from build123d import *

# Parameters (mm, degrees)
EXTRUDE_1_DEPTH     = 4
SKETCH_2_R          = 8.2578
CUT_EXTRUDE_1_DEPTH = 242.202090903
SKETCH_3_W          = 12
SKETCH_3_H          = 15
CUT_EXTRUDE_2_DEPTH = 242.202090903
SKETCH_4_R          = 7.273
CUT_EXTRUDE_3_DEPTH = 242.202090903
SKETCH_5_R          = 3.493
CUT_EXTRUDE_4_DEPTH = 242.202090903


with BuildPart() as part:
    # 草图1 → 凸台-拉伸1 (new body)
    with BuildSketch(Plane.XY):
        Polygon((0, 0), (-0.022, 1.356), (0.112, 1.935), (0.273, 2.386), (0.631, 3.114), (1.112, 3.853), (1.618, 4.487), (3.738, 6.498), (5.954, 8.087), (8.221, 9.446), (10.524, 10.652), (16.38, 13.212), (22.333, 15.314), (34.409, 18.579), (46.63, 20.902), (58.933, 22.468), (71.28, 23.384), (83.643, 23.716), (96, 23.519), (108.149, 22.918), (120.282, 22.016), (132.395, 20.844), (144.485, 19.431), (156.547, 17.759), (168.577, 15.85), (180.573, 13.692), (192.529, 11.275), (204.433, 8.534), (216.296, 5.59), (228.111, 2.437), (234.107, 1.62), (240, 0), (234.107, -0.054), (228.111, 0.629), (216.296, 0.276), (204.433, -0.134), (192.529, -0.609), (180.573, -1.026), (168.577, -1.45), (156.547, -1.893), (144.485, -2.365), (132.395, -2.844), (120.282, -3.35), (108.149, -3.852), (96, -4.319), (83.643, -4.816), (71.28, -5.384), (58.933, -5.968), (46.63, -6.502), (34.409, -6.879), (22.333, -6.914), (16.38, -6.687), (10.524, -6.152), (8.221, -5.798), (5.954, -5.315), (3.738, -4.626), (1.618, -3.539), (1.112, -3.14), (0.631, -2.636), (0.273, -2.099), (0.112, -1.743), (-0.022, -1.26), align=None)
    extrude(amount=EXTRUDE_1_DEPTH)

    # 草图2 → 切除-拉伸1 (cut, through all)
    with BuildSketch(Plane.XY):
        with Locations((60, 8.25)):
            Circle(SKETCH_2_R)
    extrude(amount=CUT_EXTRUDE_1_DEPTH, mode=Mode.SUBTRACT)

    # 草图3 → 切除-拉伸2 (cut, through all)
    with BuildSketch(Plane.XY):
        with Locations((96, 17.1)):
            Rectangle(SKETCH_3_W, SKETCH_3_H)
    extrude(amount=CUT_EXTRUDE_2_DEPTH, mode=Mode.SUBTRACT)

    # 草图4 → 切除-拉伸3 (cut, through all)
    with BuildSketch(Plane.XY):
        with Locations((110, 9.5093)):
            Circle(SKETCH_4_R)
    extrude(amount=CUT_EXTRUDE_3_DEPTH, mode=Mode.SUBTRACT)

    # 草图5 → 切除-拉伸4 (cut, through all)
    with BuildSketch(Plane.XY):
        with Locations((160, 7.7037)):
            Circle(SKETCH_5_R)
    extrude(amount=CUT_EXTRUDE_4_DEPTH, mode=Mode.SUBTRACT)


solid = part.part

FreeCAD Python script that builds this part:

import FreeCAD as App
import Part
import Sketcher
from FreeCAD import Vector
Q = App.Units.Quantity

doc = App.newDocument("Part")
params = doc.addObject("Spreadsheet::Sheet", "Params")
for row, (alias, value) in enumerate([
    ("pad1_length", "4 mm"),
    ("sketch3_width", "12 mm"),
    ("sketch3_height", "15 mm"),
], start=1):
    params.set(f"A{row}", alias)
    params.set(f"B{row}", "=" + value)
    params.setAlias(f"B{row}", alias)

body = doc.addObject("PartDesign::Body", "Body")

sketch1 = body.newObject("Sketcher::SketchObject", "Sketch")
sketch1.AttachmentSupport = (doc.getObject("XY_Plane"), [""])
sketch1.MapMode = "FlatFace"
sketch1.addGeometry([
    Part.LineSegment(Vector(-0.02, 1.36, 0), Vector(0, 0, 0)),
    Part.LineSegment(Vector(0, 0, 0), Vector(-0.02, -1.26, 0)),
    Part.LineSegment(Vector(-0.02, -1.26, 0), Vector(0.11, -1.74, 0)),
    Part.LineSegment(Vector(0.11, -1.74, 0), Vector(0.27, -2.1, 0)),
    Part.LineSegment(Vector(0.27, -2.1, 0), Vector(0.63, -2.64, 0)),
    Part.LineSegment(Vector(0.63, -2.64, 0), Vector(1.11, -3.14, 0)),
    Part.LineSegment(Vector(1.11, -3.14, 0), Vector(1.62, -3.54, 0)),
    Part.LineSegment(Vector(1.62, -3.54, 0), Vector(3.74, -4.63, 0)),
    Part.LineSegment(Vector(3.74, -4.63, 0), Vector(5.95, -5.32, 0)),
    Part.LineSegment(Vector(5.95, -5.32, 0), Vector(8.22, -5.8, 0)),
    Part.LineSegment(Vector(8.22, -5.8, 0), Vector(10.52, -6.15, 0)),
    Part.LineSegment(Vector(10.52, -6.15, 0), Vector(16.38, -6.69, 0)),
    Part.LineSegment(Vector(16.38, -6.69, 0), Vector(22.33, -6.91, 0)),
    Part.LineSegment(Vector(22.33, -6.91, 0), Vector(34.41, -6.88, 0)),
    Part.LineSegment(Vector(34.41, -6.88, 0), Vector(46.63, -6.5, 0)),
    Part.LineSegment(Vector(46.63, -6.5, 0), Vector(58.93, -5.97, 0)),
    Part.LineSegment(Vector(58.93, -5.97, 0), Vector(71.28, -5.38, 0)),
    Part.LineSegment(Vector(71.28, -5.38, 0), Vector(83.64, -4.82, 0)),
    Part.LineSegment(Vector(83.64, -4.82, 0), Vector(96, -4.32, 0)),
    Part.LineSegment(Vector(96, -4.32, 0), Vector(108.15, -3.85, 0)),
    Part.LineSegment(Vector(108.15, -3.85, 0), Vector(120.28, -3.35, 0)),
    Part.LineSegment(Vector(120.28, -3.35, 0), Vector(132.4, -2.84, 0)),
    Part.LineSegment(Vector(132.4, -2.84, 0), Vector(144.49, -2.37, 0)),
    Part.LineSegment(Vector(144.49, -2.37, 0), Vector(156.55, -1.89, 0)),
    Part.LineSegment(Vector(156.55, -1.89, 0), Vector(168.58, -1.45, 0)),
    Part.LineSegment(Vector(168.58, -1.45, 0), Vector(180.57, -1.03, 0)),
    Part.LineSegment(Vector(180.57, -1.03, 0), Vector(192.53, -0.61, 0)),
    Part.LineSegment(Vector(192.53, -0.61, 0), Vector(204.43, -0.13, 0)),
    Part.LineSegment(Vector(204.43, -0.13, 0), Vector(216.3, 0.28, 0)),
    Part.LineSegment(Vector(216.3, 0.28, 0), Vector(228.11, 0.63, 0)),
    Part.LineSegment(Vector(228.11, 0.63, 0), Vector(234.11, -0.05, 0)),
    Part.LineSegment(Vector(234.11, -0.05, 0), Vector(240, 0, 0)),
    Part.LineSegment(Vector(240, 0, 0), Vector(234.11, 1.62, 0)),
    Part.LineSegment(Vector(234.11, 1.62, 0), Vector(228.11, 2.44, 0)),
    Part.LineSegment(Vector(228.11, 2.44, 0), Vector(216.3, 5.59, 0)),
    Part.LineSegment(Vector(216.3, 5.59, 0), Vector(204.43, 8.53, 0)),
    Part.LineSegment(Vector(204.43, 8.53, 0), Vector(192.53, 11.28, 0)),
    Part.LineSegment(Vector(192.53, 11.28, 0), Vector(180.57, 13.69, 0)),
    Part.LineSegment(Vector(180.57, 13.69, 0), Vector(168.58, 15.85, 0)),
    Part.LineSegment(Vector(168.58, 15.85, 0), Vector(156.55, 17.76, 0)),
    Part.LineSegment(Vector(156.55, 17.76, 0), Vector(144.49, 19.43, 0)),
    Part.LineSegment(Vector(144.49, 19.43, 0), Vector(132.4, 20.84, 0)),
    Part.LineSegment(Vector(132.4, 20.84, 0), Vector(120.28, 22.02, 0)),
    Part.LineSegment(Vector(120.28, 22.02, 0), Vector(108.15, 22.92, 0)),
    Part.LineSegment(Vector(108.15, 22.92, 0), Vector(96, 23.52, 0)),
    Part.LineSegment(Vector(96, 23.52, 0), Vector(83.64, 23.72, 0)),
    Part.LineSegment(Vector(83.64, 23.72, 0), Vector(71.28, 23.38, 0)),
    Part.LineSegment(Vector(71.28, 23.38, 0), Vector(58.93, 22.47, 0)),
    Part.LineSegment(Vector(58.93, 22.47, 0), Vector(46.63, 20.9, 0)),
    Part.LineSegment(Vector(46.63, 20.9, 0), Vector(34.41, 18.58, 0)),
    Part.LineSegment(Vector(34.41, 18.58, 0), Vector(22.33, 15.31, 0)),
    Part.LineSegment(Vector(22.33, 15.31, 0), Vector(16.38, 13.21, 0)),
    Part.LineSegment(Vector(16.38, 13.21, 0), Vector(10.52, 10.65, 0)),
    Part.LineSegment(Vector(10.52, 10.65, 0), Vector(8.22, 9.45, 0)),
    Part.LineSegment(Vector(8.22, 9.45, 0), Vector(5.95, 8.09, 0)),
    Part.LineSegment(Vector(5.95, 8.09, 0), Vector(3.74, 6.5, 0)),
    Part.LineSegment(Vector(3.74, 6.5, 0), Vector(1.62, 4.49, 0)),
    Part.LineSegment(Vector(1.62, 4.49, 0), Vector(1.11, 3.85, 0)),
    Part.LineSegment(Vector(1.11, 3.85, 0), Vector(0.63, 3.11, 0)),
    Part.LineSegment(Vector(0.63, 3.11, 0), Vector(0.27, 2.39, 0)),
    Part.LineSegment(Vector(0.27, 2.39, 0), Vector(0.11, 1.94, 0)),
    Part.LineSegment(Vector(0.11, 1.94, 0), Vector(-0.02, 1.36, 0)),
], False)
sketch1.addConstraint([
    Sketcher.Constraint("Coincident", 0, 2, 1, 1),
    Sketcher.Constraint("Coincident", 1, 2, 2, 1),
    Sketcher.Constraint("Coincident", 2, 2, 3, 1),
    Sketcher.Constraint("Coincident", 3, 2, 4, 1),
    Sketcher.Constraint("Coincident", 4, 2, 5, 1),
    Sketcher.Constraint("Coincident", 5, 2, 6, 1),
    Sketcher.Constraint("Coincident", 6, 2, 7, 1),
    Sketcher.Constraint("Coincident", 7, 2, 8, 1),
    Sketcher.Constraint("Coincident", 8, 2, 9, 1),
    Sketcher.Constraint("Coincident", 9, 2, 10, 1),
    Sketcher.Constraint("Coincident", 10, 2, 11, 1),
    Sketcher.Constraint("Coincident", 11, 2, 12, 1),
    Sketcher.Constraint("Coincident", 12, 2, 13, 1),
    Sketcher.Constraint("Coincident", 13, 2, 14, 1),
    Sketcher.Constraint("Coincident", 14, 2, 15, 1),
    Sketcher.Constraint("Coincident", 15, 2, 16, 1),
    Sketcher.Constraint("Coincident", 16, 2, 17, 1),
    Sketcher.Constraint("Coincident", 17, 2, 18, 1),
    Sketcher.Constraint("Coincident", 18, 2, 19, 1),
    Sketcher.Constraint("Coincident", 19, 2, 20, 1),
    Sketcher.Constraint("Coincident", 20, 2, 21, 1),
    Sketcher.Constraint("Coincident", 21, 2, 22, 1),
    Sketcher.Constraint("Coincident", 22, 2, 23, 1),
    Sketcher.Constraint("Coincident", 23, 2, 24, 1),
    Sketcher.Constraint("Coincident", 24, 2, 25, 1),
    Sketcher.Constraint("Coincident", 25, 2, 26, 1),
    Sketcher.Constraint("Coincident", 26, 2, 27, 1),
    Sketcher.Constraint("Coincident", 27, 2, 28, 1),
    Sketcher.Constraint("Coincident", 28, 2, 29, 1),
    Sketcher.Constraint("Coincident", 29, 2, 30, 1),
    Sketcher.Constraint("Coincident", 30, 2, 31, 1),
    Sketcher.Constraint("Coincident", 31, 2, 32, 1),
    Sketcher.Constraint("Coincident", 32, 2, 33, 1),
    Sketcher.Constraint("Coincident", 33, 2, 34, 1),
    Sketcher.Constraint("Coincident", 34, 2, 35, 1),
    Sketcher.Constraint("Coincident", 35, 2, 36, 1),
    Sketcher.Constraint("Coincident", 36, 2, 37, 1),
    Sketcher.Constraint("Coincident", 37, 2, 38, 1),
    Sketcher.Constraint("Coincident", 38, 2, 39, 1),
    Sketcher.Constraint("Coincident", 39, 2, 40, 1),
    Sketcher.Constraint("Coincident", 40, 2, 41, 1),
    Sketcher.Constraint("Coincident", 41, 2, 42, 1),
    Sketcher.Constraint("Coincident", 42, 2, 43, 1),
    Sketcher.Constraint("Coincident", 43, 2, 44, 1),
    Sketcher.Constraint("Coincident", 44, 2, 45, 1),
    Sketcher.Constraint("Coincident", 45, 2, 46, 1),
    Sketcher.Constraint("Coincident", 46, 2, 47, 1),
    Sketcher.Constraint("Coincident", 47, 2, 48, 1),
    Sketcher.Constraint("Coincident", 48, 2, 49, 1),
    Sketcher.Constraint("Coincident", 49, 2, 50, 1),
    Sketcher.Constraint("Coincident", 50, 2, 51, 1),
    Sketcher.Constraint("Coincident", 51, 2, 52, 1),
    Sketcher.Constraint("Coincident", 52, 2, 53, 1),
    Sketcher.Constraint("Coincident", 53, 2, 54, 1),
    Sketcher.Constraint("Coincident", 54, 2, 55, 1),
    Sketcher.Constraint("Coincident", 55, 2, 56, 1),
    Sketcher.Constraint("Coincident", 56, 2, 57, 1),
    Sketcher.Constraint("Coincident", 57, 2, 58, 1),
    Sketcher.Constraint("Coincident", 58, 2, 59, 1),
    Sketcher.Constraint("Coincident", 59, 2, 60, 1),
    Sketcher.Constraint("Coincident", 60, 2, 61, 1),
    Sketcher.Constraint("Coincident", 61, 2, 0, 1),
    Sketcher.Constraint("Coincident", 0, 2, -1, 1),
    Sketcher.Constraint("PointOnObject", 31, 2, -1),
    Sketcher.Constraint("Vertical", 30, 2, 32, 2),
    Sketcher.Constraint("Vertical", 29, 2, 33, 2),
    Sketcher.Constraint("Vertical", 28, 2, 34, 2),
    Sketcher.Constraint("Vertical", 27, 2, 35, 2),
    Sketcher.Constraint("Vertical", 26, 2, 36, 2),
    Sketcher.Constraint("Vertical", 25, 2, 37, 2),
    Sketcher.Constraint("Vertical", 24, 2, 38, 2),
    Sketcher.Constraint("Vertical", 23, 2, 39, 2),
    Sketcher.Constraint("Vertical", 22, 2, 40, 2),
    Sketcher.Constraint("Vertical", 21, 2, 41, 2),
    Sketcher.Constraint("Vertical", 20, 2, 42, 2),
    Sketcher.Constraint("Vertical", 19, 2, 43, 2),
    Sketcher.Constraint("Vertical", 18, 2, 44, 2),
    Sketcher.Constraint("Vertical", 17, 2, 45, 2),
    Sketcher.Constraint("Vertical", 16, 2, 46, 2),
    Sketcher.Constraint("Vertical", 15, 2, 47, 2),
    Sketcher.Constraint("Vertical", 14, 2, 48, 2),
    Sketcher.Constraint("Vertical", 13, 2, 49, 2),
    Sketcher.Constraint("Vertical", 12, 2, 50, 2),
    Sketcher.Constraint("Vertical", 11, 2, 51, 2),
    Sketcher.Constraint("Vertical", 10, 2, 52, 2),
    Sketcher.Constraint("Vertical", 9, 2, 53, 2),
    Sketcher.Constraint("Vertical", 8, 2, 54, 2),
    Sketcher.Constraint("Vertical", 7, 2, 55, 2),
    Sketcher.Constraint("Vertical", 6, 2, 56, 2),
    Sketcher.Constraint("Vertical", 5, 2, 57, 2),
    Sketcher.Constraint("Vertical", 4, 2, 58, 2),
    Sketcher.Constraint("Vertical", 3, 2, 59, 2),
    Sketcher.Constraint("Vertical", 2, 2, 60, 2),
    Sketcher.Constraint("Vertical", 1, 2, 61, 2),
    Sketcher.Constraint("DistanceX", -1, 1, 18, 2, Q("96 mm")),
    Sketcher.Constraint("DistanceX", -1, 1, 31, 2, Q("240 mm")),
    Sketcher.Constraint("Angle", 11, Q("-5.220011 deg")),
    Sketcher.Constraint("DistanceY", 1, 2, -1, 1, Q("1.26 mm")),
    Sketcher.Constraint("DistanceY", 5, 2, -1, 1, Q("3.14 mm")),
    Sketcher.Constraint("DistanceX", -1, 1, 11, 2, Q("16.38 mm")),
    Sketcher.Constraint("DistanceX", -1, 1, 14, 2, Q("46.63 mm")),
    Sketcher.Constraint("DistanceX", -1, 1, 16, 2, Q("71.28 mm")),
    Sketcher.Constraint("DistanceY", 20, 2, -1, 1, Q("3.35 mm")),
    Sketcher.Constraint("DistanceY", 24, 2, -1, 1, Q("1.45 mm")),
    Sketcher.Constraint("DistanceY", -1, 1, 32, 2, Q("1.62 mm")),
    Sketcher.Constraint("DistanceY", -1, 1, 34, 2, Q("5.59 mm")),
    Sketcher.Constraint("DistanceY", -1, 1, 38, 2, Q("15.85 mm")),
    Sketcher.Constraint("DistanceX", 1, 2, -1, 1, Q("0.022 mm")),
    Sketcher.Constraint("DistanceX", -1, 1, 2, 2, Q("0.112 mm")),
    Sketcher.Constraint("DistanceY", 2, 2, -1, 1, Q("1.743 mm")),
    Sketcher.Constraint("DistanceX", -1, 1, 3, 2, Q("0.273 mm")),
    Sketcher.Constraint("DistanceY", 3, 2, -1, 1, Q("2.099 mm")),
    Sketcher.Constraint("DistanceX", -1, 1, 4, 2, Q("0.631 mm")),
    Sketcher.Constraint("DistanceY", 4, 2, -1, 1, Q("2.636 mm")),
    Sketcher.Constraint("DistanceX", -1, 1, 5, 2, Q("1.112 mm")),
    Sketcher.Constraint("DistanceX", -1, 1, 6, 2, Q("1.618 mm")),
    Sketcher.Constraint("DistanceY", 6, 2, -1, 1, Q("3.539 mm")),
    Sketcher.Constraint("DistanceX", -1, 1, 7, 2, Q("3.738 mm")),
    Sketcher.Constraint("DistanceY", 7, 2, -1, 1, Q("4.626 mm")),
    Sketcher.Constraint("DistanceX", -1, 1, 8, 2, Q("5.954 mm")),
    Sketcher.Constraint("DistanceY", 8, 2, -1, 1, Q("5.315 mm")),
    Sketcher.Constraint("DistanceX", -1, 1, 9, 2, Q("8.221 mm")),
    Sketcher.Constraint("DistanceY", 9, 2, -1, 1, Q("5.798 mm")),
    Sketcher.Constraint("DistanceX", -1, 1, 10, 2, Q("10.524 mm")),
    Sketcher.Constraint("DistanceY", 10, 2, -1, 1, Q("6.152 mm")),
    Sketcher.Constraint("DistanceX", -1, 1, 12, 2, Q("22.333 mm")),
    Sketcher.Constraint("DistanceY", 12, 2, -1, 1, Q("6.914 mm")),
    Sketcher.Constraint("DistanceX", -1, 1, 13, 2, Q("34.409 mm")),
    Sketcher.Constraint("DistanceY", 13, 2, -1, 1, Q("6.879 mm")),
    Sketcher.Constraint("DistanceY", 14, 2, -1, 1, Q("6.502 mm")),
    Sketcher.Constraint("DistanceX", -1, 1, 15, 2, Q("58.933 mm")),
    Sketcher.Constraint("DistanceY", 15, 2, -1, 1, Q("5.968 mm")),
    Sketcher.Constraint("DistanceY", 16, 2, -1, 1, Q("5.384 mm")),
    Sketcher.Constraint("DistanceX", -1, 1, 17, 2, Q("83.643 mm")),
    Sketcher.Constraint("DistanceY", 17, 2, -1, 1, Q("4.816 mm")),
    Sketcher.Constraint("DistanceY", 18, 2, -1, 1, Q("4.319 mm")),
    Sketcher.Constraint("DistanceX", -1, 1, 19, 2, Q("108.149 mm")),
    Sketcher.Constraint("DistanceY", 19, 2, -1, 1, Q("3.852 mm")),
    Sketcher.Constraint("DistanceX", -1, 1, 20, 2, Q("120.282 mm")),
    Sketcher.Constraint("DistanceX", -1, 1, 21, 2, Q("132.395 mm")),
    Sketcher.Constraint("DistanceY", 21, 2, -1, 1, Q("2.844 mm")),
    Sketcher.Constraint("DistanceX", -1, 1, 22, 2, Q("144.485 mm")),
    Sketcher.Constraint("DistanceY", 22, 2, -1, 1, Q("2.365 mm")),
    Sketcher.Constraint("DistanceX", -1, 1, 23, 2, Q("156.547 mm")),
    Sketcher.Constraint("DistanceY", 23, 2, -1, 1, Q("1.893 mm")),
    Sketcher.Constraint("DistanceX", -1, 1, 24, 2, Q("168.577 mm")),
    Sketcher.Constraint("DistanceX", -1, 1, 25, 2, Q("180.573 mm")),
    Sketcher.Constraint("DistanceY", 25, 2, -1, 1, Q("1.026 mm")),
    Sketcher.Constraint("DistanceX", -1, 1, 26, 2, Q("192.529 mm")),
    Sketcher.Constraint("DistanceY", 26, 2, -1, 1, Q("0.609 mm")),
    Sketcher.Constraint("DistanceX", -1, 1, 27, 2, Q("204.433 mm")),
    Sketcher.Constraint("DistanceY", 27, 2, -1, 1, Q("0.134 mm")),
    Sketcher.Constraint("DistanceX", -1, 1, 28, 2, Q("216.296 mm")),
    Sketcher.Constraint("DistanceY", -1, 1, 28, 2, Q("0.276 mm")),
    Sketcher.Constraint("DistanceX", -1, 1, 29, 2, Q("228.111 mm")),
    Sketcher.Constraint("DistanceY", -1, 1, 29, 2, Q("0.629 mm")),
    Sketcher.Constraint("DistanceX", -1, 1, 30, 2, Q("234.107 mm")),
    Sketcher.Constraint("DistanceY", 30, 2, -1, 1, Q("0.054 mm")),
    Sketcher.Constraint("DistanceY", -1, 1, 33, 2, Q("2.437 mm")),
    Sketcher.Constraint("DistanceY", -1, 1, 35, 2, Q("8.534 mm")),
    Sketcher.Constraint("DistanceY", -1, 1, 36, 2, Q("11.275 mm")),
    Sketcher.Constraint("DistanceY", -1, 1, 37, 2, Q("13.692 mm")),
    Sketcher.Constraint("DistanceY", -1, 1, 39, 2, Q("17.759 mm")),
    Sketcher.Constraint("DistanceY", -1, 1, 40, 2, Q("19.431 mm")),
    Sketcher.Constraint("DistanceY", -1, 1, 41, 2, Q("20.844 mm")),
    Sketcher.Constraint("DistanceY", -1, 1, 42, 2, Q("22.016 mm")),
    Sketcher.Constraint("DistanceY", -1, 1, 43, 2, Q("22.918 mm")),
    Sketcher.Constraint("DistanceY", -1, 1, 44, 2, Q("23.519 mm")),
    Sketcher.Constraint("DistanceY", -1, 1, 45, 2, Q("23.716 mm")),
    Sketcher.Constraint("DistanceY", -1, 1, 46, 2, Q("23.384 mm")),
    Sketcher.Constraint("DistanceY", -1, 1, 47, 2, Q("22.468 mm")),
    Sketcher.Constraint("DistanceY", -1, 1, 48, 2, Q("20.902 mm")),
    Sketcher.Constraint("DistanceY", -1, 1, 49, 2, Q("18.579 mm")),
    Sketcher.Constraint("DistanceY", -1, 1, 50, 2, Q("15.314 mm")),
    Sketcher.Constraint("DistanceY", -1, 1, 51, 2, Q("13.212 mm")),
    Sketcher.Constraint("DistanceY", -1, 1, 52, 2, Q("10.652 mm")),
    Sketcher.Constraint("DistanceY", -1, 1, 53, 2, Q("9.446 mm")),
    Sketcher.Constraint("DistanceY", -1, 1, 54, 2, Q("8.087 mm")),
    Sketcher.Constraint("DistanceY", -1, 1, 55, 2, Q("6.498 mm")),
    Sketcher.Constraint("DistanceY", -1, 1, 56, 2, Q("4.487 mm")),
    Sketcher.Constraint("DistanceY", -1, 1, 57, 2, Q("3.853 mm")),
    Sketcher.Constraint("DistanceY", -1, 1, 58, 2, Q("3.114 mm")),
    Sketcher.Constraint("DistanceY", -1, 1, 59, 2, Q("2.386 mm")),
    Sketcher.Constraint("DistanceY", -1, 1, 60, 2, Q("1.935 mm")),
    Sketcher.Constraint("DistanceY", -1, 1, 61, 2, Q("1.356 mm")),
])
pad1 = body.newObject("PartDesign::Pad", "Pad")
pad1.Profile = sketch1
pad1.setExpression("Length", "Params.pad1_length")

sketch2 = body.newObject("Sketcher::SketchObject", "Sketch001")
sketch2.AttachmentSupport = (doc.getObject("XY_Plane"), [""])
sketch2.MapMode = "FlatFace"
sketch2.addGeometry(Part.Circle(Vector(60, 8, 0), Vector(0, 0, 1), 8), False)
sketch2.addConstraint([
    Sketcher.Constraint("DistanceX", -1, 1, 0, 3, Q("60 mm")),
    Sketcher.Constraint("Diameter", 0, Q("16.5156 mm")),
    Sketcher.Constraint("DistanceY", -1, 1, 0, 3, Q("8.25 mm")),
])
pocket1 = body.newObject("PartDesign::Pocket", "Pocket")
pocket1.Profile = sketch2
pocket1.Type = "ThroughAll"
pocket1.Reversed = True

sketch3 = body.newObject("Sketcher::SketchObject", "Sketch002")
sketch3.AttachmentSupport = (doc.getObject("XY_Plane"), [""])
sketch3.MapMode = "FlatFace"
sketch3.addGeometry([
    Part.LineSegment(Vector(90, 25, 0), Vector(90, 10, 0)),
    Part.LineSegment(Vector(90, 10, 0), Vector(102, 10, 0)),
    Part.LineSegment(Vector(102, 10, 0), Vector(102, 25, 0)),
    Part.LineSegment(Vector(102, 25, 0), Vector(90, 25, 0)),
], False)
sketch3.addConstraint([
    Sketcher.Constraint("Coincident", 0, 2, 1, 1),
    Sketcher.Constraint("Coincident", 1, 2, 2, 1),
    Sketcher.Constraint("Coincident", 2, 2, 3, 1),
    Sketcher.Constraint("Coincident", 3, 2, 0, 1),
    Sketcher.Constraint("Vertical", 0),
    Sketcher.Constraint("Horizontal", 1),
    Sketcher.Constraint("Vertical", 2),
    Sketcher.Constraint("Horizontal", 3),
    Sketcher.Constraint("DistanceX", 1, 1, 1, 2, Q("12 mm")),
    Sketcher.Constraint("DistanceY", 0, 2, 0, 1, Q("15 mm")),
    Sketcher.Constraint("DistanceX", -1, 1, 0, 2, Q("90 mm")),
    Sketcher.Constraint("DistanceY", -1, 1, 0, 2, Q("9.6 mm")),
])
sketch3.setExpression("Constraints[8]", "Params.sketch3_width")
sketch3.setExpression("Constraints[9]", "Params.sketch3_height")
pocket2 = body.newObject("PartDesign::Pocket", "Pocket001")
pocket2.Profile = sketch3
pocket2.Type = "ThroughAll"
pocket2.Reversed = True

sketch4 = body.newObject("Sketcher::SketchObject", "Sketch003")
sketch4.AttachmentSupport = (doc.getObject("XY_Plane"), [""])
sketch4.MapMode = "FlatFace"
sketch4.addGeometry(Part.Circle(Vector(110, 10, 0), Vector(0, 0, 1), 7), False)
sketch4.addConstraint([
    Sketcher.Constraint("Diameter", 0, Q("14.546 mm")),
    Sketcher.Constraint("DistanceX", -1, 1, 0, 3, Q("110 mm")),
    Sketcher.Constraint("DistanceY", -1, 1, 0, 3, Q("9.5093 mm")),
])
pocket3 = body.newObject("PartDesign::Pocket", "Pocket002")
pocket3.Profile = sketch4
pocket3.Type = "ThroughAll"
pocket3.Reversed = True

sketch5 = body.newObject("Sketcher::SketchObject", "Sketch004")
sketch5.AttachmentSupport = (doc.getObject("XY_Plane"), [""])
sketch5.MapMode = "FlatFace"
sketch5.addGeometry(Part.Circle(Vector(160, 7.7, 0), Vector(0, 0, 1), 3.5), False)
sketch5.addConstraint([
    Sketcher.Constraint("Diameter", 0, Q("6.986 mm")),
    Sketcher.Constraint("DistanceX", -1, 1, 0, 3, Q("160 mm")),
    Sketcher.Constraint("DistanceY", -1, 1, 0, 3, Q("7.7037 mm")),
])
pocket4 = body.newObject("PartDesign::Pocket", "Pocket003")
pocket4.Profile = sketch5
pocket4.Type = "ThroughAll"
pocket4.Reversed = True

doc.recompute()
